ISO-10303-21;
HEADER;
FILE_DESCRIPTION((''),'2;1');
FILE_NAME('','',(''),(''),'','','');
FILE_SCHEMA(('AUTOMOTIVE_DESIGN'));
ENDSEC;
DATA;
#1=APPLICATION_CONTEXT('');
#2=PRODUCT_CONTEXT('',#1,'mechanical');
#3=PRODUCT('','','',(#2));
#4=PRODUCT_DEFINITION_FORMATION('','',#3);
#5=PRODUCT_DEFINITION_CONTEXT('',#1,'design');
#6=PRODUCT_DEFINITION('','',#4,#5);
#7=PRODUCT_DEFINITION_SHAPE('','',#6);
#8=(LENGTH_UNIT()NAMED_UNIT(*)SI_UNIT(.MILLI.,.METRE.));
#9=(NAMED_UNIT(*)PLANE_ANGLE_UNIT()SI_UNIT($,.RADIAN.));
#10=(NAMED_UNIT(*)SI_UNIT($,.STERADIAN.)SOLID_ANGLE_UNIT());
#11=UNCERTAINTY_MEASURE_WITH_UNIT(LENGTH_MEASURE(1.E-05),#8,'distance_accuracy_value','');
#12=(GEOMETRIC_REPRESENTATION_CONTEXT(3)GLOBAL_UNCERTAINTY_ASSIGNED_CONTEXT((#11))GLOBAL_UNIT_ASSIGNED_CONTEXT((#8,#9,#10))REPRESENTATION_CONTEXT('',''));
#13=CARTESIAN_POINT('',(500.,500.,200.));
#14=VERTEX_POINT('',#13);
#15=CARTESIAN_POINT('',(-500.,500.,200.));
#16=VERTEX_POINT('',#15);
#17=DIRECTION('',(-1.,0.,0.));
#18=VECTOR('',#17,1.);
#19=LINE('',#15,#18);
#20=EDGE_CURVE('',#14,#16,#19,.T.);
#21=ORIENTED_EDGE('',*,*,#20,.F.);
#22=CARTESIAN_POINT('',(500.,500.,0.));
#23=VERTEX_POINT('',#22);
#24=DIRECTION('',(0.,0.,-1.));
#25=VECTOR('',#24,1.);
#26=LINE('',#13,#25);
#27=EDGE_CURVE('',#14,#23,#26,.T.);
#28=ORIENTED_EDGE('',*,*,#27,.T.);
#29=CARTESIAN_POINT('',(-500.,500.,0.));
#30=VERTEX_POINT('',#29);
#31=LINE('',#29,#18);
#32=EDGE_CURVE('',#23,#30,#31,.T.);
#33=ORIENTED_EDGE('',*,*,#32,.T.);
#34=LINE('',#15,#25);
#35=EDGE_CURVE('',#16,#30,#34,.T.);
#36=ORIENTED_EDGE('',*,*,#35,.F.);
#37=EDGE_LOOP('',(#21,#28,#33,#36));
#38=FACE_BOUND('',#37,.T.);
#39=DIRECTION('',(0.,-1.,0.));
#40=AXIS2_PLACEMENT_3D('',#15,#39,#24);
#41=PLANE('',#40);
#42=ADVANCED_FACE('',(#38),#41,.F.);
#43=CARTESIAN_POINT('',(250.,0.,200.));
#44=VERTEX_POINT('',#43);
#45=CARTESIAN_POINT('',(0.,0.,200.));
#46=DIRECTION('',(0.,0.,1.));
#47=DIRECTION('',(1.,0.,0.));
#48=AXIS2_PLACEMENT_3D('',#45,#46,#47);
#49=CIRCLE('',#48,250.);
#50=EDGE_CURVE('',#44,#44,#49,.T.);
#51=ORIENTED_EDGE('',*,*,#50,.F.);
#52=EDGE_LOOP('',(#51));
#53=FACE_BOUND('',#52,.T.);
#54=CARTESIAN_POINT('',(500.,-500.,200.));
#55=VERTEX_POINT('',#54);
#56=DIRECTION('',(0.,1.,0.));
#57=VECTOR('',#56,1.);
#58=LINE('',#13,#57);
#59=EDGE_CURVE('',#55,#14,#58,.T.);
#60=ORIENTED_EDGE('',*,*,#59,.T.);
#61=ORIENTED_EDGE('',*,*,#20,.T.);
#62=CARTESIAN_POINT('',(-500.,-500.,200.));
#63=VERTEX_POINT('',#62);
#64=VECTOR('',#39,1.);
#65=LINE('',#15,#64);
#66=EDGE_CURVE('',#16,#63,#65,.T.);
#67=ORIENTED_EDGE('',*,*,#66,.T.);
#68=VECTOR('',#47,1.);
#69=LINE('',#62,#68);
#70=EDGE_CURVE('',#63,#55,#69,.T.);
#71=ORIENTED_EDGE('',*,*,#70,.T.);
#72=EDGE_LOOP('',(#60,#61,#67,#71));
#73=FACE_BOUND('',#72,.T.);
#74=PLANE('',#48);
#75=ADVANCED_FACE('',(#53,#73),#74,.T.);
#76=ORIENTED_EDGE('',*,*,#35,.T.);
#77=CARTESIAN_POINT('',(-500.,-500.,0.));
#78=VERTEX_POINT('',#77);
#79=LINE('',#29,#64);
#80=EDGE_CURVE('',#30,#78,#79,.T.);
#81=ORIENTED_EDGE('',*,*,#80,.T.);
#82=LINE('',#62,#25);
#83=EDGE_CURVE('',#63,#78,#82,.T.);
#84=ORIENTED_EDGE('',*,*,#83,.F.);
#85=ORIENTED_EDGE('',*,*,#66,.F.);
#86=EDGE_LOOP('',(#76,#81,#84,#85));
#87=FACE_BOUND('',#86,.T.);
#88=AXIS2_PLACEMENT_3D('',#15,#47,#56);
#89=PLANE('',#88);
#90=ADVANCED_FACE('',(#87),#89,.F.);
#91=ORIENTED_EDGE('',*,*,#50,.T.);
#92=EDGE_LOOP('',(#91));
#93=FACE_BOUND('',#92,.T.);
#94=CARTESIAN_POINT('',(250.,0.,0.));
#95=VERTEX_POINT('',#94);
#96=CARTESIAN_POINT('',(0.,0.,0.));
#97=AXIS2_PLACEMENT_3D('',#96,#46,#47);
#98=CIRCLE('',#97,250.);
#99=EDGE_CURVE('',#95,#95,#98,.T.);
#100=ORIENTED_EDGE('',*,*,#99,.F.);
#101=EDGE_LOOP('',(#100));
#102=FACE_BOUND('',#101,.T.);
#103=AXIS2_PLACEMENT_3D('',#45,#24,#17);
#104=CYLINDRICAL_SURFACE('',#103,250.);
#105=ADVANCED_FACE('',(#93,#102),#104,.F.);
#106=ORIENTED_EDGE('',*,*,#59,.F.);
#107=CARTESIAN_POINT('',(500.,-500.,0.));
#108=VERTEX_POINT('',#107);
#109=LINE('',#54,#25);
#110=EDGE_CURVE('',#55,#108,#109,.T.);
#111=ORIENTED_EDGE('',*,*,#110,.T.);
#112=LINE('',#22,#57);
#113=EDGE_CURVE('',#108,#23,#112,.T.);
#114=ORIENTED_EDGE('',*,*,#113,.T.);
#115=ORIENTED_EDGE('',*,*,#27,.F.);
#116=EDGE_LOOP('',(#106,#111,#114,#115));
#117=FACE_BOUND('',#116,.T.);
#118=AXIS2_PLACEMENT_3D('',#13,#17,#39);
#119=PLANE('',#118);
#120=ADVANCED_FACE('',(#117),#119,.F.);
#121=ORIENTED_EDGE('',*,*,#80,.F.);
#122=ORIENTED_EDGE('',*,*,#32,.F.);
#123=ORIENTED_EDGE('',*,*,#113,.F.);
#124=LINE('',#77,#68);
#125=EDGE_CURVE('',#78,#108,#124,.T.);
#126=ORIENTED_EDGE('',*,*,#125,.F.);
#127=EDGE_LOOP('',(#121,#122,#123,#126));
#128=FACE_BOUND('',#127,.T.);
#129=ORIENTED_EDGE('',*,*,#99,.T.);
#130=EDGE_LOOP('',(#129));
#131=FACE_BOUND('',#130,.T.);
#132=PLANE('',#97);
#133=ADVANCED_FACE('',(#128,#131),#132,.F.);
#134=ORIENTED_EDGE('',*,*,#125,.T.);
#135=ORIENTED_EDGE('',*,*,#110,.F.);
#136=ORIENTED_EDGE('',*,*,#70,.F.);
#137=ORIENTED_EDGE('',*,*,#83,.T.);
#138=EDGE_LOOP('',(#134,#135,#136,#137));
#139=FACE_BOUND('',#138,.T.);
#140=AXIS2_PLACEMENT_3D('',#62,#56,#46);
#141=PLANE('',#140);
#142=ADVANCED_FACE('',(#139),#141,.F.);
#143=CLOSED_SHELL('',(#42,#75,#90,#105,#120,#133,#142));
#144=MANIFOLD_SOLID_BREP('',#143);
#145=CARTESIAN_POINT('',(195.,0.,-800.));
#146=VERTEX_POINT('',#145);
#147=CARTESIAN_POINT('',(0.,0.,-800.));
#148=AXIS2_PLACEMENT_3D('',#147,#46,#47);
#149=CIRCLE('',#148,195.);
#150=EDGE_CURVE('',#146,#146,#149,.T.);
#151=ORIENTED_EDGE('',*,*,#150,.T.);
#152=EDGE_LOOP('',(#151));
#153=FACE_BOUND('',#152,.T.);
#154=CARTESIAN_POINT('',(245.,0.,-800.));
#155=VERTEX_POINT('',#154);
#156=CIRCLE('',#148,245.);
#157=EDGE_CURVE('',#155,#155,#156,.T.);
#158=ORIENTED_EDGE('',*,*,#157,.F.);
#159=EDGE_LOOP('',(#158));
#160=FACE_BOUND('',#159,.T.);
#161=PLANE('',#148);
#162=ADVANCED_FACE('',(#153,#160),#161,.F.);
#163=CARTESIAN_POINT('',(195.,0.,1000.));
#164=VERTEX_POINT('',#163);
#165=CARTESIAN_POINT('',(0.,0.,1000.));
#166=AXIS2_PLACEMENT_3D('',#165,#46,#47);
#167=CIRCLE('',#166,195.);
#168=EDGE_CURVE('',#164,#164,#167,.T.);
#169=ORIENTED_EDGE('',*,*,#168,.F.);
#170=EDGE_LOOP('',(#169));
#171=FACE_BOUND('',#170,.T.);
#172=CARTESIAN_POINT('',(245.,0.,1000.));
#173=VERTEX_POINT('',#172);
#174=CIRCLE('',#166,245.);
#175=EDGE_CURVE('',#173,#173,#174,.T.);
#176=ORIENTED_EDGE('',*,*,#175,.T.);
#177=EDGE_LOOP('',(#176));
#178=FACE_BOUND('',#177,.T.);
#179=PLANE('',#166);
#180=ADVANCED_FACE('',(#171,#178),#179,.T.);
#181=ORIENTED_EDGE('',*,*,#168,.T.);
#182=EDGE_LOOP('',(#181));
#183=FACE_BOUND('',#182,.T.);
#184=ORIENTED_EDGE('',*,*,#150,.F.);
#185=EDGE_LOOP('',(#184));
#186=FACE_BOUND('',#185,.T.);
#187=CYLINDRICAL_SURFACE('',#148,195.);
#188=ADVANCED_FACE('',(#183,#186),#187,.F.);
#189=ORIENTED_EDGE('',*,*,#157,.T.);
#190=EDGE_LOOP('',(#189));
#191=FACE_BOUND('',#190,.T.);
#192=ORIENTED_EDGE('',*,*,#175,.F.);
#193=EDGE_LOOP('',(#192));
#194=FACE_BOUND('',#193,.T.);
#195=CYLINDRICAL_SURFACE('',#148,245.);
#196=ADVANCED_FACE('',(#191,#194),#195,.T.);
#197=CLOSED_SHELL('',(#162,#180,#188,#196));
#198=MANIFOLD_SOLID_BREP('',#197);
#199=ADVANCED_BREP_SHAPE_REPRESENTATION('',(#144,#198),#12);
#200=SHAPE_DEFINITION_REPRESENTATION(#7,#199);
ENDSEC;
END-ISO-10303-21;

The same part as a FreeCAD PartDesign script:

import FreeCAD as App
import Part
import Sketcher
from FreeCAD import Vector
Q = App.Units.Quantity

doc = App.newDocument("Part")
body = doc.addObject("PartDesign::Body", "Body")

# Sketch on XY plane
sketch1 = doc.addObject("Sketcher::SketchObject", "Sketch")
body.addObject(sketch1)
sketch1.AttachmentSupport = (doc.XY_Plane, [""])
sketch1.MapMode = "FlatFace"
sketch1.addGeometry(Part.LineSegment(Vector(-500, 500, 0), Vector(-500, -500, 0)), False)
sketch1.addGeometry(Part.LineSegment(Vector(-500, -500, 0), Vector(500, -500, 0)), False)
sketch1.addGeometry(Part.LineSegment(Vector(500, -500, 0), Vector(500, 500, 0)), False)
sketch1.addGeometry(Part.LineSegment(Vector(500, 500, 0), Vector(-500, 500, 0)), False)
sketch1.addGeometry(Part.Circle(Vector(0, 0, 0), Vector(0, 0, 1), 250), False)
sketch1.addConstraint(Sketcher.Constraint("Coincident", 0, 2, 1, 1))
sketch1.addConstraint(Sketcher.Constraint("Coincident", 1, 2, 2, 1))
sketch1.addConstraint(Sketcher.Constraint("Coincident", 2, 2, 3, 1))
sketch1.addConstraint(Sketcher.Constraint("Coincident", 3, 2, 0, 1))
sketch1.addConstraint(Sketcher.Constraint("Vertical", 0))
sketch1.addConstraint(Sketcher.Constraint("Horizontal", 1))
sketch1.addConstraint(Sketcher.Constraint("Vertical", 2))
sketch1.addConstraint(Sketcher.Constraint("Horizontal", 3))
sketch1.addConstraint(Sketcher.Constraint("Coincident", 4, 3, -1, 1))
sketch1.addConstraint(Sketcher.Constraint("Symmetric", 0, 2, 2, 2, -1, 1))
sketch1.addConstraint(Sketcher.Constraint("Equal", 3, 0))
sketch1.addConstraint(Sketcher.Constraint("Diameter", 4, Q("500 mm")))
sketch1.addConstraint(Sketcher.Constraint("DistanceX", 1, 1, 1, 2, Q("1000 mm")))
pad1 = doc.addObject("PartDesign::Pad", "Pad")
body.addObject(pad1)
pad1.Profile = sketch1
pad1.Length = 200
body2 = doc.addObject("PartDesign::Body", "Body001")

# Sketch on XY plane
sketch2 = doc.addObject("Sketcher::SketchObject", "Sketch001")
body2.addObject(sketch2)
sketch2.AttachmentSupport = (doc.getObject("XY_Plane001"), [""])
sketch2.MapMode = "FlatFace"
sketch2.addGeometry(Part.Circle(Vector(0, 0, 0), Vector(0, 0, 1), 245), False)
sketch2.addGeometry(Part.Circle(Vector(0, 0, 0), Vector(0, 0, 1), 195), False)
sketch2.addConstraint(Sketcher.Constraint("Coincident", 0, 3, -1, 1))
sketch2.addConstraint(Sketcher.Constraint("Coincident", 1, 3, -1, 1))
sketch2.addConstraint(Sketcher.Constraint("Diameter", 0, Q("490 mm")))
sketch2.addConstraint(Sketcher.Constraint("Diameter", 1, Q("390 mm")))
pad2 = doc.addObject("PartDesign::Pad", "Pad001")
body2.addObject(pad2)
pad2.Profile = sketch2
pad2.Type = "TwoLengths"
pad2.Length = 1000
pad2.Length2 = 800

doc.recompute()
